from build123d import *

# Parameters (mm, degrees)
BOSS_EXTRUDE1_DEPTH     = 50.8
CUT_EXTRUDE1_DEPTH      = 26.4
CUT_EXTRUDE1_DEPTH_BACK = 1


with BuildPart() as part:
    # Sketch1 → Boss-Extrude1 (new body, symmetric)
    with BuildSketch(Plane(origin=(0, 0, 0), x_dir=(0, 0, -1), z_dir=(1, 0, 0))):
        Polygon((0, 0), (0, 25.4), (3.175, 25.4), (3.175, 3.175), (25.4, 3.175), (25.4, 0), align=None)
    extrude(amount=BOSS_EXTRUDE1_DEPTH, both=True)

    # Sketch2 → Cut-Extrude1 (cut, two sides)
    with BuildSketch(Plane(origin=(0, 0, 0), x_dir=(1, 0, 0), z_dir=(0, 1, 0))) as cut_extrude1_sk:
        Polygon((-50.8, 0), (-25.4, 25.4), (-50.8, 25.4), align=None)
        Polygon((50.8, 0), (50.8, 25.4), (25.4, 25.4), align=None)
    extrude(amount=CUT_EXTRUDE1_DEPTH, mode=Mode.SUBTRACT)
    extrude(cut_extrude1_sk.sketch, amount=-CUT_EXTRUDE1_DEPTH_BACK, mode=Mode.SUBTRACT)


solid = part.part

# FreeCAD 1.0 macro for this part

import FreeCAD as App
import Part
import Sketcher
from FreeCAD import Vector
Q = App.Units.Quantity


def add_polygon(sketch, points):
    """Adds a closed chain of lines whose ends are joined by coincident constraints."""
    first, n = sketch.GeometryCount, len(points)
    for a, b in zip(points, points[1:] + points[:1]):
        sketch.addGeometry(Part.LineSegment(App.Vector(*a, 0), App.Vector(*b, 0)), False)
    for i in range(n):
        sketch.addConstraint(Sketcher.Constraint("Coincident", first + i, 2, first + (i + 1) % n, 1))

doc = App.newDocument("Part")
body = doc.addObject("PartDesign::Body", "Body")

sketch1 = doc.addObject("Sketcher::SketchObject", "Sketch")
body.addObject(sketch1)
sketch1.AttachmentSupport = (doc.YZ_Plane, [""])
sketch1.MapMode = "FlatFace"
add_polygon(sketch1, [(25.4, 0), (0, 0), (0, -25.4), (3.2, -25.4), (3.2, -3.2), (25.4, -3.2)])
sketch1.addConstraint([
    Sketcher.Constraint("Horizontal", 0),
    Sketcher.Constraint("Vertical", 1),
    Sketcher.Constraint("Horizontal", 2),
    Sketcher.Constraint("Vertical", 3),
    Sketcher.Constraint("Horizontal", 4),
    Sketcher.Constraint("Vertical", 5),
    Sketcher.Constraint("Coincident", 0, 2, -1, 1),
    Sketcher.Constraint("Equal", 0, 1),
    Sketcher.Constraint("Equal", 4, 3),
    Sketcher.Constraint("DistanceX", 0, 2, 0, 1, Q("1 in")),
    Sketcher.Constraint("DistanceX", 2, 1, 2, 2, Q("0.125 in")),
])
pad1 = doc.addObject("PartDesign::Pad", "Pad")
body.addObject(pad1)
pad1.Profile = sketch1
pad1.Length = Q("4 in")
pad1.Midplane = True

sketch2 = doc.addObject("Sketcher::SketchObject", "Sketch001")
body.addObject(sketch2)
sketch2.AttachmentSupport = (doc.XZ_Plane, [""])
sketch2.MapMode = "FlatFace"
add_polygon(sketch2, [(-51, 0), (-25, -25), (-51, -25)])
add_polygon(sketch2, [(51, 0), (51, -25), (25, -25)])
sketch2.addConstraint([
    Sketcher.Constraint("Horizontal", 1),
    Sketcher.Constraint("Vertical", 2),
    Sketcher.Constraint("Vertical", 3),
    Sketcher.Constraint("Horizontal", 4),
    Sketcher.Constraint("Symmetric", 2, 2, 5, 2, -1, 1),
    Sketcher.Constraint("Symmetric", 0, 2, 4, 2, -2),
    Sketcher.Constraint("PointOnObject", 2, 2, -1),
    Sketcher.Constraint("Perpendicular", 0, 5),
    Sketcher.Constraint("DistanceX", 1, 2, 1, 1, Q("1 in")),
    Sketcher.Constraint("DistanceX", 0, 2, -1, 1, Q("1 in")),
])
pocket1 = doc.addObject("PartDesign::Pocket", "Pocket")
body.addObject(pocket1)
pocket1.Profile = sketch2
pocket1.Type = "ThroughAll"
pocket1.Midplane = True

doc.recompute()
